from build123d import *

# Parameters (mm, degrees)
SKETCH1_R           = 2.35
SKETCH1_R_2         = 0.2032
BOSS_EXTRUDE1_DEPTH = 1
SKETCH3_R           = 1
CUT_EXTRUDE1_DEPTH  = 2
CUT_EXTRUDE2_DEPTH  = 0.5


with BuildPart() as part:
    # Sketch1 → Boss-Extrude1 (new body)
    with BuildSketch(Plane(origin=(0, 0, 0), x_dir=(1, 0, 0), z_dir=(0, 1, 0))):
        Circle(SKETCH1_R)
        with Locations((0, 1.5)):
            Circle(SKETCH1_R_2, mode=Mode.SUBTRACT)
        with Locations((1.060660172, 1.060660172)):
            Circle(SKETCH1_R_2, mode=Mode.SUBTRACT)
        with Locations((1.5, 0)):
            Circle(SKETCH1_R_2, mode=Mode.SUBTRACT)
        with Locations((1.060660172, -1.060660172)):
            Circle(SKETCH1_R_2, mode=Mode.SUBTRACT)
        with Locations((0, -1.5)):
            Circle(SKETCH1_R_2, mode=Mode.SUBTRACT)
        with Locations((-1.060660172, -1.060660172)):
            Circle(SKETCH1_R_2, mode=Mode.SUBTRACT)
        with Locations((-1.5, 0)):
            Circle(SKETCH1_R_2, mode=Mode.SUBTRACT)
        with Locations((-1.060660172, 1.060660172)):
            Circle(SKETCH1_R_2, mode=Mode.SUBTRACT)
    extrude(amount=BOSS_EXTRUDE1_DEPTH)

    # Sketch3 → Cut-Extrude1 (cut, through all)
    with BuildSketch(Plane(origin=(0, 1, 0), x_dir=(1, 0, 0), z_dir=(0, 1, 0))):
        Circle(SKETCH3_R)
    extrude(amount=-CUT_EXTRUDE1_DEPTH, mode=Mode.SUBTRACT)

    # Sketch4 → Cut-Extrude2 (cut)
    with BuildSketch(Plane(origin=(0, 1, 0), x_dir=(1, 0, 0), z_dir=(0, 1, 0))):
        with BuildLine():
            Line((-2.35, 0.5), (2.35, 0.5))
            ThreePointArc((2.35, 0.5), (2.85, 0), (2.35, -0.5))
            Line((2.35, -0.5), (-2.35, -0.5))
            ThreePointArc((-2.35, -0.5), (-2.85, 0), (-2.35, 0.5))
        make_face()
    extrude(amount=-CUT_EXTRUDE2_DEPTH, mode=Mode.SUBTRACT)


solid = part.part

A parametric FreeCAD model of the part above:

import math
import FreeCAD as App
import Part
import Sketcher

V = App.Vector
Q = App.Units.Quantity

doc = App.newDocument("Part")
body = doc.addObject("PartDesign::Body", "Body")

# Sketch on XZ plane
sketch1 = body.newObject("Sketcher::SketchObject", "Sketch")
sketch1.AttachmentSupport = (doc.getObject("XZ_Plane"), [""])
sketch1.MapMode = "FlatFace"
sketch1.addGeometry([
    Part.Circle(V(0, 0, 0), V(0, 0, 1), 2.35),  # 0
    Part.Circle(V(-1.06, 1.06, 0), V(0, 0, 1), 0.2),  # 1
    Part.Circle(V(0, 1.5, 0), V(0, 0, 1), 0.2),  # 2
    Part.Circle(V(1.06, 1.06, 0), V(0, 0, 1), 0.2),  # 3
    Part.Circle(V(-1.5, 0, 0), V(0, 0, 1), 0.2),  # 4
    Part.Circle(V(-1.06, -1.06, 0), V(0, 0, 1), 0.2),  # 5
    Part.Circle(V(1.5, 0, 0), V(0, 0, 1), 0.2),  # 6
    Part.Circle(V(0, -1.5, 0), V(0, 0, 1), 0.2),  # 7
    Part.Circle(V(1.06, -1.06, 0), V(0, 0, 1), 0.2),  # 8
], False)
sketch1.addConstraint([
    Sketcher.Constraint("Coincident", 0, 3, -1, 1),
    Sketcher.Constraint("Equal", 1, 2),
    Sketcher.Constraint("Equal", 2, 3),
    Sketcher.Constraint("Equal", 3, 4),
    Sketcher.Constraint("Equal", 4, 5),
    Sketcher.Constraint("Equal", 5, 6),
    Sketcher.Constraint("Equal", 6, 7),
    Sketcher.Constraint("Equal", 7, 8),
    Sketcher.Constraint("Symmetric", 3, 3, 5, 3, -1, 1),
    Sketcher.Constraint("Symmetric", 4, 3, 6, 3, -1, 1),
    Sketcher.Constraint("Symmetric", 2, 3, 7, 3, -1, 1),
    Sketcher.Constraint("Symmetric", 1, 3, 8, 3, -1, 1),
    Sketcher.Constraint("Symmetric", 1, 3, 3, 3, -2),
    Sketcher.Constraint("PointOnObject", 2, 3, -2),
    Sketcher.Constraint("PointOnObject", 4, 3, -1),
    Sketcher.Constraint("Diameter", 0, Q("4.7 mm")),
    Sketcher.Constraint("Diameter", 1, Q("0.4064 mm")),
    Sketcher.Constraint("DistanceY", -1, 1, 2, 3, Q("1.5 mm")),
    Sketcher.Constraint("DistanceX", 4, 3, -1, 1, Q("1.5 mm")),
    Sketcher.Constraint("DistanceX", 1, 3, -1, 1, Q("1.06066 mm")),
    Sketcher.Constraint("DistanceY", -1, 1, 1, 3, Q("1.06066 mm")),
])
pad1 = body.newObject("PartDesign::Pad", "Pad")
pad1.Profile = sketch1
pad1.Length = 1
pad1.Reversed = True

# Sketch on XZ plane
sketch2 = body.newObject("Sketcher::SketchObject", "Sketch001")
sketch2.AttachmentSupport = (doc.getObject("XZ_Plane"), [""])
sketch2.MapMode = "FlatFace"
sketch2.AttachmentOffset = App.Placement(V(0, 0, -1), App.Rotation())
sketch2.addGeometry(Part.Circle(V(0, 0, 0), V(0, 0, 1), 1), False)
sketch2.addConstraint([
    Sketcher.Constraint("Coincident", 0, 3, -1, 1),
    Sketcher.Constraint("Diameter", 0, Q("2 mm")),
])
pocket1 = body.newObject("PartDesign::Pocket", "Pocket")
pocket1.Profile = sketch2
pocket1.Type = "ThroughAll"
pocket1.Reversed = True

# Sketch on XZ plane
sketch3 = body.newObject("Sketcher::SketchObject", "Sketch002")
sketch3.AttachmentSupport = (doc.getObject("XZ_Plane"), [""])
sketch3.MapMode = "FlatFace"
sketch3.AttachmentOffset = App.Placement(V(0, 0, -1), App.Rotation())
sketch3.addGeometry([
    Part.LineSegment(V(2.4, -0.5, 0), V(-2.4, -0.5, 0)),
    Part.ArcOfCircle(Part.Circle(V(-2.4, 0, 0), V(0, 0, 1), 0.5), math.radians(90), math.radians(270)),
    Part.LineSegment(V(-2.4, 0.5, 0), V(2.4, 0.5, 0)),
    Part.ArcOfCircle(Part.Circle(V(2.4, 0, 0), V(0, 0, 1), 0.5), math.radians(-90), math.radians(90)),
], False)
sketch3.addConstraint([
    Sketcher.Constraint("Tangent", 0, 2, 1, 2),
    Sketcher.Constraint("Tangent", 1, 1, 2, 1),
    Sketcher.Constraint("Tangent", 2, 2, 3, 2),
    Sketcher.Constraint("Tangent", 3, 1, 0, 1),
    Sketcher.Constraint("Horizontal", 0),
    Sketcher.Constraint("Horizontal", 2),
    Sketcher.Constraint("Symmetric", 1, 3, 3, 3, -1, 1),
    Sketcher.Constraint("Radius", 1, Q("0.5 mm")),
    Sketcher.Constraint("DistanceX", 0, 2, 0, 1, Q("4.7 mm")),
])
pocket2 = body.newObject("PartDesign::Pocket", "Pocket001")
pocket2.Profile = sketch3
pocket2.Length = 0.5
pocket2.Reversed = True

doc.recompute()
